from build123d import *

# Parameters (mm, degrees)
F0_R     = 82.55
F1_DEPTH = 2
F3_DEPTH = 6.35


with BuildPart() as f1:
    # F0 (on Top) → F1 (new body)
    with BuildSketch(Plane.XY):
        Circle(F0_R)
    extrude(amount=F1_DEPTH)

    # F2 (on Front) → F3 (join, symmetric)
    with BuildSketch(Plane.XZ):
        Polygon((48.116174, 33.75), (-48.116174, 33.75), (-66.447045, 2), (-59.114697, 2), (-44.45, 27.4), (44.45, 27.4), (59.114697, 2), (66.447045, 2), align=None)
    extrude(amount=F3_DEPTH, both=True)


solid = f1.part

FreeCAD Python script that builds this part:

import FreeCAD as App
import Part
import Sketcher
Q = App.Units.Quantity

doc = App.newDocument("Part")
body = doc.addObject("PartDesign::Body", "Body")

# Sketch on XY plane
sketch1 = doc.addObject("Sketcher::SketchObject", "Sketch")
body.addObject(sketch1)
sketch1.AttachmentSupport = (doc.XY_Plane, [""])
sketch1.MapMode = "FlatFace"
sketch1.addGeometry(Part.Circle(App.Vector(0, 0, 0), App.Vector(0, 0, 1), 83), False)
sketch1.addConstraint(Sketcher.Constraint("Coincident", 0, 3, -1, 1))
sketch1.addConstraint(Sketcher.Constraint("Diameter", 0, Q("6.5 in")))
pad1 = doc.addObject("PartDesign::Pad", "Pad")
body.addObject(pad1)
pad1.Profile = sketch1
pad1.Length = 2

# Sketch on XZ plane
sketch2 = doc.addObject("Sketcher::SketchObject", "Sketch001")
body.addObject(sketch2)
sketch2.AttachmentSupport = (doc.XZ_Plane, [""])
sketch2.MapMode = "FlatFace"
sketch2.addGeometry(Part.LineSegment(App.Vector(48, 34, 0), App.Vector(-48, 34, 0)), False)
sketch2.addGeometry(Part.LineSegment(App.Vector(-48, 34, 0), App.Vector(-66, 2, 0)), False)
sketch2.addGeometry(Part.LineSegment(App.Vector(-66, 2, 0), App.Vector(-59, 2, 0)), False)
sketch2.addGeometry(Part.LineSegment(App.Vector(-59, 2, 0), App.Vector(-44, 27, 0)), False)
sketch2.addGeometry(Part.LineSegment(App.Vector(-44, 27, 0), App.Vector(44, 27, 0)), False)
sketch2.addGeometry(Part.LineSegment(App.Vector(44, 27, 0), App.Vector(59, 2, 0)), False)
sketch2.addGeometry(Part.LineSegment(App.Vector(59, 2, 0), App.Vector(66, 2, 0)), False)
sketch2.addGeometry(Part.LineSegment(App.Vector(66, 2, 0), App.Vector(48, 34, 0)), False)
sketch2.addConstraint(Sketcher.Constraint("Coincident", 0, 2, 1, 1))
sketch2.addConstraint(Sketcher.Constraint("Coincident", 1, 2, 2, 1))
sketch2.addConstraint(Sketcher.Constraint("Coincident", 2, 2, 3, 1))
sketch2.addConstraint(Sketcher.Constraint("Coincident", 3, 2, 4, 1))
sketch2.addConstraint(Sketcher.Constraint("Coincident", 4, 2, 5, 1))
sketch2.addConstraint(Sketcher.Constraint("Coincident", 5, 2, 6, 1))
sketch2.addConstraint(Sketcher.Constraint("Coincident", 6, 2, 7, 1))
sketch2.addConstraint(Sketcher.Constraint("Coincident", 7, 2, 0, 1))
sketch2.addConstraint(Sketcher.Constraint("Horizontal", 0))
sketch2.addConstraint(Sketcher.Constraint("Horizontal", 2))
sketch2.addConstraint(Sketcher.Constraint("Horizontal", 4))
sketch2.addConstraint(Sketcher.Constraint("Horizontal", 6))
sketch2.addConstraint(Sketcher.Constraint("Symmetric", 2, 2, 5, 2, -2))
sketch2.addConstraint(Sketcher.Constraint("Parallel", 1, 3))
sketch2.addConstraint(Sketcher.Constraint("Parallel", 5, 7))
sketch2.addConstraint(Sketcher.Constraint("Equal", 2, 6))
sketch2.addConstraint(Sketcher.Constraint("Equal", 3, 5))
sketch2.addConstraint(Sketcher.Constraint("DistanceX", 4, 1, 4, 2, Q("3.5 in")))
sketch2.addConstraint(Sketcher.Constraint("Angle", 1, Q("-120 deg")))
sketch2.addConstraint(Sketcher.Constraint("DistanceY", 2, 2, 3, 2, Q("1 in")))
sketch2.addConstraint(Sketcher.Constraint("DistanceY", 1, 2, 0, 2, Q("1.25 in")))
sketch2.addConstraint(Sketcher.Constraint("DistanceX", 0, 2, 0, 1, 96.232348))
sketch2.addConstraint(Sketcher.Constraint("DistanceY", -1, 1, 0, 2, 33.75))
pad2 = doc.addObject("PartDesign::Pad", "Pad001")
body.addObject(pad2)
pad2.Profile = sketch2
pad2.Length = Q("0.5 in")
pad2.Midplane = True

doc.recompute()
